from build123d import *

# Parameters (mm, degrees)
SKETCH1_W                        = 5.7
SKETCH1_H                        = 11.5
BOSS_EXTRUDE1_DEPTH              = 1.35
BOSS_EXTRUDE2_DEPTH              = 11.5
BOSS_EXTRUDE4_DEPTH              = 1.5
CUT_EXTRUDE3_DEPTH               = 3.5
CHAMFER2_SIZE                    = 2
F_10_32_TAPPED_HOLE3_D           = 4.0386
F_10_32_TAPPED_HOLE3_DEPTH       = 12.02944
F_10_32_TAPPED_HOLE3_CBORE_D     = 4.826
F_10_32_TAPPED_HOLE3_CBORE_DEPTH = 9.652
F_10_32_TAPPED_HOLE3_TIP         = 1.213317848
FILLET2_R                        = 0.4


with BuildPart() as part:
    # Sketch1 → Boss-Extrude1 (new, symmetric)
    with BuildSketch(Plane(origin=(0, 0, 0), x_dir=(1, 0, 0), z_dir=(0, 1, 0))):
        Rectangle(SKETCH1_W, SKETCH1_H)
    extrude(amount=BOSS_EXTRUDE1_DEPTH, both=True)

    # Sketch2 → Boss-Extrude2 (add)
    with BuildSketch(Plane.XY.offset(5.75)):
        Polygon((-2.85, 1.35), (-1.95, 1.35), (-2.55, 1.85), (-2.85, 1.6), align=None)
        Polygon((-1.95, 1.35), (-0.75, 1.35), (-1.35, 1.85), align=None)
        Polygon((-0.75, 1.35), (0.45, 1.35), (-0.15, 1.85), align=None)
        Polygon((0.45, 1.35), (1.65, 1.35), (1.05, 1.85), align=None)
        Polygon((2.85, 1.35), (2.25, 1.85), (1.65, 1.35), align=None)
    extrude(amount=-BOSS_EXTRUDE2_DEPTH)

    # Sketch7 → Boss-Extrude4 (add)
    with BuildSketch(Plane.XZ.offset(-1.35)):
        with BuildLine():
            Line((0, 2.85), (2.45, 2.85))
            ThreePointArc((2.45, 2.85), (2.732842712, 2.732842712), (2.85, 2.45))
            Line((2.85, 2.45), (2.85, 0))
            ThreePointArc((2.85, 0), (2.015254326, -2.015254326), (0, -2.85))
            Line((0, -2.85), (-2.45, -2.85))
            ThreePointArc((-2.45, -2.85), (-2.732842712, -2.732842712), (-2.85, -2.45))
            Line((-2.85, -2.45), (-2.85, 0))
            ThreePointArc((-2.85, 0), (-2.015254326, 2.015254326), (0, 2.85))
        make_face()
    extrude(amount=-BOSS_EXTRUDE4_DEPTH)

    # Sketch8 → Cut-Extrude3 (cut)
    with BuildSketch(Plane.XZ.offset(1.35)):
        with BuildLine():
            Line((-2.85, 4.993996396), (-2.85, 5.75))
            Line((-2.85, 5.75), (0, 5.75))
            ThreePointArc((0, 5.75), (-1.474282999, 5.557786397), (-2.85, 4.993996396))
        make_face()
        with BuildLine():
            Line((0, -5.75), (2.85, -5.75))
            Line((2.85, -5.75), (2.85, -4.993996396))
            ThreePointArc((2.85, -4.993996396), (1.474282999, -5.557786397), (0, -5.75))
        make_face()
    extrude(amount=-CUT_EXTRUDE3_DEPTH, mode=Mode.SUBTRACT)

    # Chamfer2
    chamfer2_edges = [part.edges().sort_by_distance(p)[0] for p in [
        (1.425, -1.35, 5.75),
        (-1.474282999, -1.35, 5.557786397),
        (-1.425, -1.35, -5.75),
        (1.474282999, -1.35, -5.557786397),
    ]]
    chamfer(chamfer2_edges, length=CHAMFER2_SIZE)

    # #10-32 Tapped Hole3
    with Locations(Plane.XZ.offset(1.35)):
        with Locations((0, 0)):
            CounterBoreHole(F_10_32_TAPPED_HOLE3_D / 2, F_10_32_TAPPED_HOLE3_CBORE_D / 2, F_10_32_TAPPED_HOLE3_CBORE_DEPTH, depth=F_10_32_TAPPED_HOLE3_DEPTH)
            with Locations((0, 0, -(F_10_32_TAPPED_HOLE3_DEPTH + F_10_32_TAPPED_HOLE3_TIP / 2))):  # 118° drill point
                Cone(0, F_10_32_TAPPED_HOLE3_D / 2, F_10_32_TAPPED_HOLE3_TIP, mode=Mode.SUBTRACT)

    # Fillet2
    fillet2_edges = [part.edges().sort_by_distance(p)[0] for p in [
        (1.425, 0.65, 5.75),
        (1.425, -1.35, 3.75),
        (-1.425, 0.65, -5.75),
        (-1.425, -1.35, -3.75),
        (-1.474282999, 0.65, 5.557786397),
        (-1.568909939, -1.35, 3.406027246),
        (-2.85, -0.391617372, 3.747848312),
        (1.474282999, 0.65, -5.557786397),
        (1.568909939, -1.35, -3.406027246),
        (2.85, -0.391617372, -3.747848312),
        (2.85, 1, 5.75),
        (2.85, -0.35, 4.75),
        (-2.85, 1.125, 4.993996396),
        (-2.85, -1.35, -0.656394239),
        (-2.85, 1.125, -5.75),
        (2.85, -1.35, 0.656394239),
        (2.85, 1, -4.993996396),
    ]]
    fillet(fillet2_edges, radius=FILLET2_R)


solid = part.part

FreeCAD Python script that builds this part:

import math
import FreeCAD as App
import Part
import Sketcher
Q = App.Units.Quantity


def edges_at(feature, points):
    """Names of the edges that pass closest to the given points."""
    edges = feature.Shape.Edges
    near = lambda p: min(range(len(edges)), key=lambda i: edges[i].distToShape(Part.Vertex(*p))[0])
    return sorted({f"Edge{near(p) + 1}" for p in points})


def add_polygon(sketch, points):
    """Adds a closed chain of lines whose ends are joined by coincident constraints."""
    first, n = sketch.GeometryCount, len(points)
    for a, b in zip(points, points[1:] + points[:1]):
        sketch.addGeometry(Part.LineSegment(App.Vector(*a, 0), App.Vector(*b, 0)), False)
    for i in range(n):
        sketch.addConstraint(Sketcher.Constraint("Coincident", first + i, 2, first + (i + 1) % n, 1))

doc = App.newDocument("Part")
body = doc.addObject("PartDesign::Body", "Body")

sketch1 = doc.addObject("Sketcher::SketchObject", "Sketch")
body.addObject(sketch1)
sketch1.AttachmentSupport = (doc.XZ_Plane, [""])
sketch1.MapMode = "FlatFace"
add_polygon(sketch1, [(-2.85, -5.75), (-2.85, 5.75), (2.85, 5.75), (2.85, -5.75)])
sketch1.addConstraint([
    Sketcher.Constraint("Vertical", 0),
    Sketcher.Constraint("Horizontal", 1),
    Sketcher.Constraint("Vertical", 2),
    Sketcher.Constraint("Horizontal", 3),
    Sketcher.Constraint("Symmetric", 0, 2, 2, 2, -1, 1),
    Sketcher.Constraint("DistanceX", 1, 1, 1, 2, Q("5.7 mm")),
    Sketcher.Constraint("DistanceY", 0, 1, 0, 2, Q("11.5 mm")),
])
pad1 = doc.addObject("PartDesign::Pad", "Pad")
body.addObject(pad1)
pad1.Profile = sketch1
pad1.Length = 2.7
pad1.Midplane = True

sketch2 = doc.addObject("Sketcher::SketchObject", "Sketch001")
body.addObject(sketch2)
sketch2.AttachmentSupport = (doc.XY_Plane, [""])
sketch2.MapMode = "FlatFace"
sketch2.AttachmentOffset = App.Placement(App.Vector(0, 0, 5.75), App.Rotation())
add_polygon(sketch2, [(-2.85, 1.35), (-1.95, 1.35), (-2.55, 1.85), (-2.85, 1.6)])
add_polygon(sketch2, [(-1.95, 1.35), (-0.75, 1.35), (-1.35, 1.85)])
add_polygon(sketch2, [(-0.75, 1.35), (0.45, 1.35), (-0.15, 1.85)])
add_polygon(sketch2, [(0.45, 1.35), (1.65, 1.35), (1.05, 1.85)])
add_polygon(sketch2, [(2.85, 1.35), (2.25, 1.85), (1.65, 1.35)])
sketch2.addConstraint([
    Sketcher.Constraint("Horizontal", 0),
    Sketcher.Constraint("Vertical", 3),
    Sketcher.Constraint("Horizontal", 4),
    Sketcher.Constraint("Horizontal", 7),
    Sketcher.Constraint("Horizontal", 10),
    Sketcher.Constraint("Horizontal", 15),
    Sketcher.Constraint("Coincident", 6, 2, 0, 2),
    Sketcher.Constraint("Coincident", 9, 2, 4, 2),
    Sketcher.Constraint("Coincident", 12, 2, 7, 2),
    Sketcher.Constraint("Coincident", 14, 2, 10, 2),
    Sketcher.Constraint("Parallel", 1, 5),
    Sketcher.Constraint("Parallel", 2, 6),
    Sketcher.Constraint("Parallel", 5, 8),
    Sketcher.Constraint("Parallel", 6, 9),
    Sketcher.Constraint("Parallel", 8, 11),
    Sketcher.Constraint("Parallel", 9, 12),
    Sketcher.Constraint("Parallel", 11, 13),
    Sketcher.Constraint("Parallel", 12, 14),
    Sketcher.Constraint("Horizontal", 1, 2, 5, 2),
    Sketcher.Constraint("Horizontal", 5, 2, 8, 2),
    Sketcher.Constraint("Horizontal", 8, 2, 11, 2),
    Sketcher.Constraint("Horizontal", 11, 2, 13, 2),
    Sketcher.Constraint("Equal", 5, 6),
    Sketcher.Constraint("DistanceX", 0, 1, 0, 2, Q("0.9 mm")),
    Sketcher.Constraint("DistanceX", 4, 1, 4, 2, Q("1.2 mm")),
    Sketcher.Constraint("DistanceY", 3, 2, 3, 1, Q("0.25 mm")),
    Sketcher.Constraint("DistanceY", -1, 1, 2, 2, Q("1.6 mm")),
    Sketcher.Constraint("DistanceX", 0, 2, -1, 1, Q("1.95 mm")),
])
pad2 = doc.addObject("PartDesign::Pad", "Pad001")
body.addObject(pad2)
pad2.Profile = sketch2
pad2.Length = 11.5
pad2.Reversed = True

sketch3 = doc.addObject("Sketcher::SketchObject", "Sketch002")
body.addObject(sketch3)
sketch3.AttachmentSupport = (doc.XZ_Plane, [""])
sketch3.MapMode = "FlatFace"
sketch3.AttachmentOffset = App.Placement(App.Vector(0, 0, -1.35), App.Rotation())
sketch3.addGeometry([
    Part.LineSegment(App.Vector(2.45, 2.85, 0), App.Vector(0, 2.85, 0)),
    Part.ArcOfCircle(Part.Circle(App.Vector(0, 0, 0), App.Vector(0, 0, 1), 2.85), math.radians(90), math.radians(180)),
    Part.LineSegment(App.Vector(-2.85, 0, 0), App.Vector(-2.85, -2.45, 0)),
    Part.ArcOfCircle(Part.Circle(App.Vector(-2.45, -2.45, 0), App.Vector(0, 0, 1), 0.4), math.radians(-180), math.radians(-90)),
    Part.LineSegment(App.Vector(-2.45, -2.85, 0), App.Vector(0, -2.85, 0)),
    Part.ArcOfCircle(Part.Circle(App.Vector(0, 0, 0), App.Vector(0, 0, 1), 2.85), math.radians(-90), math.radians(0)),
    Part.LineSegment(App.Vector(2.85, 0, 0), App.Vector(2.85, 2.45, 0)),
    Part.ArcOfCircle(Part.Circle(App.Vector(2.45, 2.45, 0), App.Vector(0, 0, 1), 0.4), math.radians(0), math.radians(90)),
], False)
sketch3.addConstraint([
    Sketcher.Constraint("Tangent", 0, 2, 1, 1),
    Sketcher.Constraint("Tangent", 1, 2, 2, 1),
    Sketcher.Constraint("Tangent", 2, 2, 3, 1),
    Sketcher.Constraint("Tangent", 3, 2, 4, 1),
    Sketcher.Constraint("Tangent", 4, 2, 5, 1),
    Sketcher.Constraint("Tangent", 5, 2, 6, 1),
    Sketcher.Constraint("Tangent", 6, 2, 7, 1),
    Sketcher.Constraint("Tangent", 7, 2, 0, 1),
    Sketcher.Constraint("Horizontal", 0),
    Sketcher.Constraint("Vertical", 2),
    Sketcher.Constraint("Horizontal", 4),
    Sketcher.Constraint("Vertical", 6),
    Sketcher.Constraint("Coincident", 1, 3, -1, 1),
    Sketcher.Constraint("Coincident", 5, 3, -1, 1),
    Sketcher.Constraint("Equal", 1, 5),
    Sketcher.Constraint("Equal", 3, 7),
    Sketcher.Constraint("Radius", 3, Q("0.4 mm")),
    Sketcher.Constraint("Radius", 1, Q("2.85 mm")),
])
pad3 = doc.addObject("PartDesign::Pad", "Pad002")
body.addObject(pad3)
pad3.Profile = sketch3
pad3.Length = 1.5
pad3.Reversed = True

sketch4 = doc.addObject("Sketcher::SketchObject", "Sketch003")
body.addObject(sketch4)
sketch4.AttachmentSupport = (doc.XZ_Plane, [""])
sketch4.MapMode = "FlatFace"
sketch4.AttachmentOffset = App.Placement(App.Vector(0, 0, 1.35), App.Rotation())
sketch4.addGeometry([
    Part.LineSegment(App.Vector(-2.85, 5.75, 0), App.Vector(-2.85, 4.993996, 0)),
    Part.ArcOfCircle(Part.Circle(App.Vector(0, 0, 0), App.Vector(0, 0, 1), 5.75), math.radians(90), math.radians(119.712765)),
    Part.LineSegment(App.Vector(0, 5.75, 0), App.Vector(-2.85, 5.75, 0)),
    Part.LineSegment(App.Vector(0, -5.75, 0), App.Vector(2.85, -5.75, 0)),
    Part.LineSegment(App.Vector(2.85, -5.75, 0), App.Vector(2.85, -4.993996, 0)),
    Part.ArcOfCircle(Part.Circle(App.Vector(0, 0, 0), App.Vector(0, 0, 1), 5.75), math.radians(-90), math.radians(-60.287235)),
], False)
sketch4.addConstraint([
    Sketcher.Constraint("Coincident", 0, 2, 1, 2),
    Sketcher.Constraint("Tangent", 1, 1, 2, 1),
    Sketcher.Constraint("Coincident", 2, 2, 0, 1),
    Sketcher.Constraint("Coincident", 3, 2, 4, 1),
    Sketcher.Constraint("Coincident", 4, 2, 5, 2),
    Sketcher.Constraint("Tangent", 5, 1, 3, 1),
    Sketcher.Constraint("Vertical", 0),
    Sketcher.Constraint("Horizontal", 2),
    Sketcher.Constraint("Horizontal", 3),
    Sketcher.Constraint("Vertical", 4),
    Sketcher.Constraint("Coincident", 1, 3, -1, 1),
    Sketcher.Constraint("Coincident", 5, 3, -1, 1),
    Sketcher.Constraint("Equal", 1, 5),
    Sketcher.Constraint("Equal", 2, 3),
    Sketcher.Constraint("Radius", 1, Q("5.75 mm")),
    Sketcher.Constraint("DistanceX", 2, 2, 2, 1, Q("2.85 mm")),
])
pocket1 = doc.addObject("PartDesign::Pocket", "Pocket")
body.addObject(pocket1)
pocket1.Profile = sketch4
pocket1.Length = 3.5
doc.recompute()

chamfer = doc.addObject("PartDesign::Chamfer", "Chamfer")
body.addObject(chamfer)
chamfer.Base = (pocket1, edges_at(pocket1, [
    (1.425, -1.35, 5.75),
    (-1.474, -1.35, 5.558),
    (-1.425, -1.35, -5.75),
    (1.474, -1.35, -5.558),
]))
chamfer.Size = 2

sketch5 = doc.addObject("Sketcher::SketchObject", "Sketch004")
body.addObject(sketch5)
sketch5.AttachmentSupport = (doc.XZ_Plane, [""])
sketch5.MapMode = "FlatFace"
sketch5.AttachmentOffset = App.Placement(App.Vector(0, 0, 1.35), App.Rotation())
sketch5.addGeometry(Part.Circle(App.Vector(0, 0, 0), App.Vector(0, 0, 1), 2.0193), False)
sketch5.addConstraint([
    Sketcher.Constraint("Coincident", 0, 3, -1, 1),
    Sketcher.Constraint("Diameter", 0, Q("4.0386 mm")),
])
doc.recompute()
hole = doc.addObject("PartDesign::Hole", "Hole")
body.addObject(hole)
hole.Profile = sketch5
hole.ThreadType = "None"
hole.Diameter = 4.0386
hole.DepthType = "Dimension"
hole.Depth = 12.02944
hole.DrillPoint = "Angled"
hole.DrillPointAngle = 118
hole.HoleCutType = "Counterbore"
hole.HoleCutDiameter = 4.826
hole.HoleCutDepth = 9.652
doc.recompute()

fillet = doc.addObject("PartDesign::Fillet", "Fillet")
body.addObject(fillet)
fillet.Base = (hole, edges_at(hole, [
    (1.425, 0.65, 5.75),
    (1.425, -1.35, 3.75),
    (-1.425, 0.65, -5.75),
    (-1.425, -1.35, -3.75),
    (-1.474, 0.65, 5.558),
    (-1.569, -1.35, 3.406),
    (-2.85, -0.392, 3.748),
    (1.474, 0.65, -5.558),
    (1.569, -1.35, -3.406),
    (2.85, -0.392, -3.748),
    (2.85, 1, 5.75),
    (2.85, -0.35, 4.75),
    (-2.85, 1.125, 4.994),
    (-2.85, -1.35, -0.656),
    (-2.85, 1.125, -5.75),
    (2.85, -1.35, 0.656),
    (2.85, 1, -4.994),
]))
fillet.Radius = 0.4

doc.recompute()
